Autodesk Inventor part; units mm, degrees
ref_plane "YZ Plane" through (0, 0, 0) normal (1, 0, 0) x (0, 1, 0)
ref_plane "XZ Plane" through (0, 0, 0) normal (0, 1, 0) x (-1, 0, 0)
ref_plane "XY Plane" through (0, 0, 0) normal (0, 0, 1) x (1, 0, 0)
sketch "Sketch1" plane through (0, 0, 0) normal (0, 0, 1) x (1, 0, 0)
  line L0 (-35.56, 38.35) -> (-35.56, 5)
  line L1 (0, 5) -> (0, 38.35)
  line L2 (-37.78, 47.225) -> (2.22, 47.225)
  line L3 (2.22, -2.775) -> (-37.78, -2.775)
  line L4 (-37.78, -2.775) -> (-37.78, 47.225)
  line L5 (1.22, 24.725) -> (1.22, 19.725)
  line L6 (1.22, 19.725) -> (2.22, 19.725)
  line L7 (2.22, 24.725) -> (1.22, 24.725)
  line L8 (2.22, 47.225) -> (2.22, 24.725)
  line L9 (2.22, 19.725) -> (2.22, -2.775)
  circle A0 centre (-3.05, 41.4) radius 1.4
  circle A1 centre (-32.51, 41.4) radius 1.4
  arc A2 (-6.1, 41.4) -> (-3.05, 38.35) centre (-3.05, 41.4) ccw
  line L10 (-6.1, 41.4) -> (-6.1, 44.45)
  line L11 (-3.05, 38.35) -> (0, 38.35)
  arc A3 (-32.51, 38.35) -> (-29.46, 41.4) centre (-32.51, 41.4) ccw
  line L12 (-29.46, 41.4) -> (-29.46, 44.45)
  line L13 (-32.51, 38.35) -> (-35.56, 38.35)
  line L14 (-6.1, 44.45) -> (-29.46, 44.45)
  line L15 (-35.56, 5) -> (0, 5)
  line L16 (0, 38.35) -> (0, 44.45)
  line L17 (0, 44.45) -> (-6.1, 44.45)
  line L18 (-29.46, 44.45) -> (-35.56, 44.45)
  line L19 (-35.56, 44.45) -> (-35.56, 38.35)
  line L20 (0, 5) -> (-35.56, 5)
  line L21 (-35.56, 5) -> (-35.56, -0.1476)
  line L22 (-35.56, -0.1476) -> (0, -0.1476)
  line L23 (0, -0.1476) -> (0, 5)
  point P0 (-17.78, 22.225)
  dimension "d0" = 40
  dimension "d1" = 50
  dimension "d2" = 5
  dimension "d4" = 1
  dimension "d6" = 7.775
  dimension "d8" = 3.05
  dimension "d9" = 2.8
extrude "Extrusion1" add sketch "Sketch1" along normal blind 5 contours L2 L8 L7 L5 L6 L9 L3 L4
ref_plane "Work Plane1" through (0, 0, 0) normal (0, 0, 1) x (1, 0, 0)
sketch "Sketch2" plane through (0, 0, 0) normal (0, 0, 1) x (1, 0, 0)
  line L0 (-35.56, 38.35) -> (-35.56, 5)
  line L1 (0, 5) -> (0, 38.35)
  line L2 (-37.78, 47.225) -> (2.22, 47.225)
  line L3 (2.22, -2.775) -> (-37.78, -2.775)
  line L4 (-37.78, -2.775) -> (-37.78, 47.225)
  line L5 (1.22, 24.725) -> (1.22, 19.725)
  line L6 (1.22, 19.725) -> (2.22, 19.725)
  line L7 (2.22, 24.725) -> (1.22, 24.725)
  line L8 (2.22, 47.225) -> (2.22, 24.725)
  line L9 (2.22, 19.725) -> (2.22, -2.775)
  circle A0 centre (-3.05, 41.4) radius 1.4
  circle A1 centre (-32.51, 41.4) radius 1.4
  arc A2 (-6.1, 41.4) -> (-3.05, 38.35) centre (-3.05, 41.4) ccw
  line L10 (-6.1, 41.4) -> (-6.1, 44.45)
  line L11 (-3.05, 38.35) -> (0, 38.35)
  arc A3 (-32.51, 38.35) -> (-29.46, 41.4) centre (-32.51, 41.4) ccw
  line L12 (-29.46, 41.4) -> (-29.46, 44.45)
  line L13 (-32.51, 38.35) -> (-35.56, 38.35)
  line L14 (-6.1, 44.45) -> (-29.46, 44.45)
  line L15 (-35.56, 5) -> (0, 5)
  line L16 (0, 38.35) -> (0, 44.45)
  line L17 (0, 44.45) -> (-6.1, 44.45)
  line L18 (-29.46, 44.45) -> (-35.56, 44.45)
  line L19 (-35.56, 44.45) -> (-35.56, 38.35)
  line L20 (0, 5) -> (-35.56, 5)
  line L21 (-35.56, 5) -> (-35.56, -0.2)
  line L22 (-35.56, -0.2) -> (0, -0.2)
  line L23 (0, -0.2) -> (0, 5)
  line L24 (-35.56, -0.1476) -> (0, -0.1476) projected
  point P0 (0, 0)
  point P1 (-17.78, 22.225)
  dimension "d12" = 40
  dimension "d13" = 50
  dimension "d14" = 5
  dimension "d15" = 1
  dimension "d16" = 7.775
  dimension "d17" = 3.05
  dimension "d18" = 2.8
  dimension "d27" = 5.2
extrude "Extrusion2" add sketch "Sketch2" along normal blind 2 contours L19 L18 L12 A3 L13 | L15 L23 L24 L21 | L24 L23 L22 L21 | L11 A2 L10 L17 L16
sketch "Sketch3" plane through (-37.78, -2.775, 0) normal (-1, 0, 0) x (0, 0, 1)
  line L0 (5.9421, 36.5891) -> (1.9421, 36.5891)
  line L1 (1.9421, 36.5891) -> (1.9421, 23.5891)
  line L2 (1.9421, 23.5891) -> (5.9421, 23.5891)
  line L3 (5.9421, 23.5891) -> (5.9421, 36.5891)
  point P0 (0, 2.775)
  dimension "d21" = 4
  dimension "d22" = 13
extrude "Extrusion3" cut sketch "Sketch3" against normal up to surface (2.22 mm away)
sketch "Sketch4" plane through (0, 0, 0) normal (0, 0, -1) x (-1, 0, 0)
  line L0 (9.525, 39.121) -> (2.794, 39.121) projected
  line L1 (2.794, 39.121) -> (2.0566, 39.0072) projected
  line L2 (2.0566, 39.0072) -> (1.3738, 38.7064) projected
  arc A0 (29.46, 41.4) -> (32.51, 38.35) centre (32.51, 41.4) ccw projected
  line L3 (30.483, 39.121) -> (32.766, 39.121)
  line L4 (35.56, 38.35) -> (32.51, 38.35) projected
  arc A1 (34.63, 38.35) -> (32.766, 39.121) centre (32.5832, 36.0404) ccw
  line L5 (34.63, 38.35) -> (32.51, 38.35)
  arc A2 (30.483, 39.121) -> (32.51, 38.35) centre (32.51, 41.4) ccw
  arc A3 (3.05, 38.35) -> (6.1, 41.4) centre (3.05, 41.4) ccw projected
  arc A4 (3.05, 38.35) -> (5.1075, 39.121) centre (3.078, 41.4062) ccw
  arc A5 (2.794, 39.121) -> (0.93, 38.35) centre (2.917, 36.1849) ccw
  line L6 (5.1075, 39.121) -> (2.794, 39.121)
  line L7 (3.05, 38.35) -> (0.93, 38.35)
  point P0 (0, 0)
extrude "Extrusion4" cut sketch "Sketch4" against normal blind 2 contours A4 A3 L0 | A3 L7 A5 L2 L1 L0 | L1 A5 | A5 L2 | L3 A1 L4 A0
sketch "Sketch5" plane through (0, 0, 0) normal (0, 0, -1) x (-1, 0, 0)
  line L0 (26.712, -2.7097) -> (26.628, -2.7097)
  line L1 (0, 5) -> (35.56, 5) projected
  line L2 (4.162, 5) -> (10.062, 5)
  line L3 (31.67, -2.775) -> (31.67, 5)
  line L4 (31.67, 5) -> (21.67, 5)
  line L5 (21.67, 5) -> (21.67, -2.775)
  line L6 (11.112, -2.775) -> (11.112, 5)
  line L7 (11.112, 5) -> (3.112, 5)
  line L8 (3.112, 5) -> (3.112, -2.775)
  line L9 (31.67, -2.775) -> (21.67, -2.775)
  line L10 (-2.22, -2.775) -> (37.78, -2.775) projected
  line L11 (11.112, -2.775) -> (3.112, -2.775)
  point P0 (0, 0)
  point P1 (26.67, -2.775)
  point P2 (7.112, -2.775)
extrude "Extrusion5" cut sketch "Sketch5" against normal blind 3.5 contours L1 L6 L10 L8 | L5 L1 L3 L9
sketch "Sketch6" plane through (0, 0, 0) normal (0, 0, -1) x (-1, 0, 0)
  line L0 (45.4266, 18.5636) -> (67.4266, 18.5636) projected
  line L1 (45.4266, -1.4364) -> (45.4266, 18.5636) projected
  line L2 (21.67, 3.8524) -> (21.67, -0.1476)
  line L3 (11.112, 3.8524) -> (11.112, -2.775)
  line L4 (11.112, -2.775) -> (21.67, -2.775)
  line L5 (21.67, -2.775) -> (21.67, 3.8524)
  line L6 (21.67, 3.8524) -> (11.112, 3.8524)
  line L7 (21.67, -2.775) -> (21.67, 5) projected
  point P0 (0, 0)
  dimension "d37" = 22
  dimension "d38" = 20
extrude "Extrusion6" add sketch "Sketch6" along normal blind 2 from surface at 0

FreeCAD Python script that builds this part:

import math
import FreeCAD as App
import Part
import Sketcher
from FreeCAD import Vector

doc = App.newDocument("Part")
params = doc.addObject("Spreadsheet::Sheet", "Params")
for row, (alias, value) in enumerate([
    ("sketch1_width", "40 mm"),
    ("sketch1_width2", "1 mm"),
    ("sketch1_height", "50 mm"),
    ("sketch1_height2", "5 mm"),
    ("sketch1_width3", "35.56 mm"),
    ("pad1_length", "5 mm"),
    ("sketch2_diameter", "2.8 mm"),
    ("sketch2_radius", "3.05 mm"),
    ("sketch2_height", "5.2 mm"),
    ("sketch2_width", "3.05 mm"),
    ("sketch2_width2", "35.56 mm"),
    ("pad2_length", "2 mm"),
    ("sketch3_width", "13 mm"),
    ("sketch3_height", "4 mm"),
    ("pocket1_length", "2.22 mm"),
    ("sketch4_radius", "3.05 mm"),
    ("sketch4_width", "2.12 mm"),
    ("pocket2_length", "2 mm"),
    ("sketch5_width", "8 mm"),
    ("sketch5_width2", "10 mm"),
    ("pocket3_length", "3.5 mm"),
    ("pad3_length", "2 mm"),
], start=1):
    params.set(f"A{row}", alias)
    params.set(f"B{row}", "=" + value)
    params.setAlias(f"B{row}", alias)

body = doc.addObject("PartDesign::Body", "Body")

sketch1 = body.newObject("Sketcher::SketchObject", "Sketch")
sketch1.AttachmentSupport = (doc.getObject("XY_Plane"), [""])
sketch1.MapMode = "FlatFace"
sketch1.addGeometry(Part.LineSegment(Vector(2.2, 47.2, 0), Vector(-37.8, 47.2, 0)), False)
sketch1.addGeometry(Part.LineSegment(Vector(-37.8, 47.2, 0), Vector(-37.8, -2.8, 0)), False)
sketch1.addGeometry(Part.LineSegment(Vector(-37.8, -2.8, 0), Vector(2.2, -2.8, 0)), False)
sketch1.addGeometry(Part.LineSegment(Vector(2.2, -2.8, 0), Vector(2.2, 19.7, 0)), False)
sketch1.addGeometry(Part.LineSegment(Vector(2.2, 19.7, 0), Vector(1.2, 19.7, 0)), False)
sketch1.addGeometry(Part.LineSegment(Vector(1.2, 19.7, 0), Vector(1.2, 24.7, 0)), False)
sketch1.addGeometry(Part.LineSegment(Vector(1.2, 24.7, 0), Vector(2.2, 24.7, 0)), False)
sketch1.addGeometry(Part.LineSegment(Vector(2.2, 24.7, 0), Vector(2.2, 47.2, 0)), False)
sketch1.addGeometry(Part.LineSegment(Vector(-35.6, -0.1, 0), Vector(-35.6, 44.5, 0)), False)
sketch1.addGeometry(Part.LineSegment(Vector(-35.6, 44.5, 0), Vector(0, 44.5, 0)), False)
sketch1.addGeometry(Part.LineSegment(Vector(0, 44.5, 0), Vector(0, -0.1, 0)), False)
sketch1.addGeometry(Part.LineSegment(Vector(0, -0.1, 0), Vector(-35.6, -0.1, 0)), False)
sketch1.addConstraint(Sketcher.Constraint("Coincident", 0, 2, 1, 1))
sketch1.addConstraint(Sketcher.Constraint("Coincident", 1, 2, 2, 1))
sketch1.addConstraint(Sketcher.Constraint("Coincident", 2, 2, 3, 1))
sketch1.addConstraint(Sketcher.Constraint("Coincident", 3, 2, 4, 1))
sketch1.addConstraint(Sketcher.Constraint("Coincident", 4, 2, 5, 1))
sketch1.addConstraint(Sketcher.Constraint("Coincident", 5, 2, 6, 1))
sketch1.addConstraint(Sketcher.Constraint("Coincident", 6, 2, 7, 1))
sketch1.addConstraint(Sketcher.Constraint("Coincident", 7, 2, 0, 1))
sketch1.addConstraint(Sketcher.Constraint("Coincident", 8, 2, 9, 1))
sketch1.addConstraint(Sketcher.Constraint("Coincident", 9, 2, 10, 1))
sketch1.addConstraint(Sketcher.Constraint("Coincident", 10, 2, 11, 1))
sketch1.addConstraint(Sketcher.Constraint("Coincident", 11, 2, 8, 1))
sketch1.addConstraint(Sketcher.Constraint("Horizontal", 0))
sketch1.addConstraint(Sketcher.Constraint("Vertical", 1))
sketch1.addConstraint(Sketcher.Constraint("Horizontal", 2))
sketch1.addConstraint(Sketcher.Constraint("Vertical", 3))
sketch1.addConstraint(Sketcher.Constraint("Horizontal", 4))
sketch1.addConstraint(Sketcher.Constraint("Vertical", 5))
sketch1.addConstraint(Sketcher.Constraint("Horizontal", 6))
sketch1.addConstraint(Sketcher.Constraint("Vertical", 7))
sketch1.addConstraint(Sketcher.Constraint("Vertical", 8))
sketch1.addConstraint(Sketcher.Constraint("Horizontal", 9))
sketch1.addConstraint(Sketcher.Constraint("Vertical", 10))
sketch1.addConstraint(Sketcher.Constraint("Horizontal", 11))
sketch1.addConstraint(Sketcher.Constraint("PointOnObject", 9, 2, -2))
sketch1.addConstraint(Sketcher.Constraint("Vertical", 3, 2, 6, 2))
sketch1.addConstraint(Sketcher.Constraint("Equal", 3, 7))
sketch1.addConstraint(Sketcher.Constraint("DistanceX", 0, 2, 0, 1, 40.0))
sketch1.addConstraint(Sketcher.Constraint("DistanceX", 4, 2, 4, 1, 1.0))
sketch1.addConstraint(Sketcher.Constraint("DistanceY", 1, 2, 1, 1, 50.0))
sketch1.addConstraint(Sketcher.Constraint("DistanceY", 5, 1, 5, 2, 5.0))
sketch1.addConstraint(Sketcher.Constraint("DistanceX", 9, 1, 9, 2, 35.56))
sketch1.addConstraint(Sketcher.Constraint("DistanceX", 0, 2, -1, 1, 37.78))
sketch1.addConstraint(Sketcher.Constraint("DistanceY", -1, 1, 8, 2, 44.45))
sketch1.addConstraint(Sketcher.Constraint("DistanceY", 8, 1, 8, 2, 44.5976))
sketch1.addConstraint(Sketcher.Constraint("DistanceY", -1, 1, 0, 2, 47.225))
sketch1.setExpression("Constraints[27]", "Params.sketch1_width")
sketch1.setExpression("Constraints[28]", "Params.sketch1_width2")
sketch1.setExpression("Constraints[29]", "Params.sketch1_height")
sketch1.setExpression("Constraints[30]", "Params.sketch1_height2")
sketch1.setExpression("Constraints[31]", "Params.sketch1_width3")
pad1 = body.newObject("PartDesign::Pad", "Pad")
pad1.Profile = sketch1
pad1.setExpression("Length", "Params.pad1_length")

sketch2 = body.newObject("Sketcher::SketchObject", "Sketch001")
sketch2.AttachmentSupport = (doc.getObject("XY_Plane"), [""])
sketch2.MapMode = "FlatFace"
sketch2.addGeometry(Part.LineSegment(Vector(-35.6, 44.5, 0), Vector(-35.6, 38.4, 0)), False)
sketch2.addGeometry(Part.LineSegment(Vector(-35.6, 38.4, 0), Vector(-32.5, 38.4, 0)), False)
sketch2.addGeometry(Part.ArcOfCircle(Part.Circle(Vector(-32.5, 41.4, 0), Vector(0, 0, 1), 3), math.radians(-90), math.radians(0)), False)
sketch2.addGeometry(Part.LineSegment(Vector(-29.5, 41.4, 0), Vector(-29.5, 44.5, 0)), False)
sketch2.addGeometry(Part.LineSegment(Vector(-29.5, 44.5, 0), Vector(-35.6, 44.5, 0)), False)
sketch2.addGeometry(Part.Circle(Vector(-32.5, 41.4, 0), Vector(0, 0, 1), 1.4), False)
sketch2.addGeometry(Part.LineSegment(Vector(0, 5, 0), Vector(-35.6, 5, 0)), False)
sketch2.addGeometry(Part.LineSegment(Vector(-35.6, 5, 0), Vector(-35.6, -0.2, 0)), False)
sketch2.addGeometry(Part.LineSegment(Vector(-35.6, -0.2, 0), Vector(0, -0.2, 0)), False)
sketch2.addGeometry(Part.LineSegment(Vector(0, -0.2, 0), Vector(0, 5, 0)), False)
sketch2.addGeometry(Part.LineSegment(Vector(-3, 38.4, 0), Vector(0, 38.4, 0)), False)
sketch2.addGeometry(Part.LineSegment(Vector(0, 38.4, 0), Vector(0, 44.5, 0)), False)
sketch2.addGeometry(Part.LineSegment(Vector(0, 44.5, 0), Vector(-6.1, 44.5, 0)), False)
sketch2.addGeometry(Part.LineSegment(Vector(-6.1, 44.5, 0), Vector(-6.1, 41.4, 0)), False)
sketch2.addGeometry(Part.ArcOfCircle(Part.Circle(Vector(-3, 41.4, 0), Vector(0, 0, 1), 3), math.radians(180), math.radians(270)), False)
sketch2.addGeometry(Part.Circle(Vector(-3, 41.4, 0), Vector(0, 0, 1), 1.4), False)
sketch2.addConstraint(Sketcher.Constraint("Coincident", 0, 2, 1, 1))
sketch2.addConstraint(Sketcher.Constraint("Tangent", 1, 2, 2, 1))
sketch2.addConstraint(Sketcher.Constraint("Tangent", 2, 2, 3, 1))
sketch2.addConstraint(Sketcher.Constraint("Coincident", 3, 2, 4, 1))
sketch2.addConstraint(Sketcher.Constraint("Coincident", 4, 2, 0, 1))
sketch2.addConstraint(Sketcher.Constraint("Coincident", 6, 2, 7, 1))
sketch2.addConstraint(Sketcher.Constraint("Coincident", 7, 2, 8, 1))
sketch2.addConstraint(Sketcher.Constraint("Coincident", 8, 2, 9, 1))
sketch2.addConstraint(Sketcher.Constraint("Coincident", 9, 2, 6, 1))
sketch2.addConstraint(Sketcher.Constraint("Coincident", 10, 2, 11, 1))
sketch2.addConstraint(Sketcher.Constraint("Coincident", 11, 2, 12, 1))
sketch2.addConstraint(Sketcher.Constraint("Coincident", 12, 2, 13, 1))
sketch2.addConstraint(Sketcher.Constraint("Tangent", 13, 2, 14, 1))
sketch2.addConstraint(Sketcher.Constraint("Tangent", 14, 2, 10, 1))
sketch2.addConstraint(Sketcher.Constraint("Vertical", 0))
sketch2.addConstraint(Sketcher.Constraint("Horizontal", 1))
sketch2.addConstraint(Sketcher.Constraint("Vertical", 3))
sketch2.addConstraint(Sketcher.Constraint("Horizontal", 4))
sketch2.addConstraint(Sketcher.Constraint("Horizontal", 6))
sketch2.addConstraint(Sketcher.Constraint("Vertical", 7))
sketch2.addConstraint(Sketcher.Constraint("Horizontal", 8))
sketch2.addConstraint(Sketcher.Constraint("Vertical", 9))
sketch2.addConstraint(Sketcher.Constraint("Horizontal", 10))
sketch2.addConstraint(Sketcher.Constraint("Vertical", 11))
sketch2.addConstraint(Sketcher.Constraint("Horizontal", 12))
sketch2.addConstraint(Sketcher.Constraint("Vertical", 13))
sketch2.addConstraint(Sketcher.Constraint("Coincident", 5, 3, 2, 3))
sketch2.addConstraint(Sketcher.Constraint("Coincident", 15, 3, 14, 3))
sketch2.addConstraint(Sketcher.Constraint("Equal", 2, 14))
sketch2.addConstraint(Sketcher.Constraint("Equal", 5, 15))
sketch2.addConstraint(Sketcher.Constraint("PointOnObject", 8, 2, -2))
sketch2.addConstraint(Sketcher.Constraint("PointOnObject", 10, 2, -2))
sketch2.addConstraint(Sketcher.Constraint("Horizontal", 5, 3, 14, 3))
sketch2.addConstraint(Sketcher.Constraint("Horizontal", 4, 2, 11, 2))
sketch2.addConstraint(Sketcher.Constraint("Vertical", 4, 2, 6, 2))
sketch2.addConstraint(Sketcher.Constraint("Equal", 1, 10))
sketch2.addConstraint(Sketcher.Constraint("Equal", 12, 0))
sketch2.addConstraint(Sketcher.Constraint("Diameter", 5, 2.8))
sketch2.addConstraint(Sketcher.Constraint("Radius", 2, 3.05))
sketch2.addConstraint(Sketcher.Constraint("DistanceY", 7, 2, 7, 1, 5.2))
sketch2.addConstraint(Sketcher.Constraint("DistanceY", -1, 1, 6, 2, 5.0))
sketch2.addConstraint(Sketcher.Constraint("DistanceX", 1, 1, 1, 2, 3.05))
sketch2.addConstraint(Sketcher.Constraint("DistanceX", 6, 2, 6, 1, 35.56))
sketch2.addConstraint(Sketcher.Constraint("DistanceY", -1, 1, 2, 3, 41.4))
sketch2.setExpression("Constraints[37]", "Params.sketch2_diameter")
sketch2.setExpression("Constraints[38]", "Params.sketch2_radius")
sketch2.setExpression("Constraints[39]", "Params.sketch2_height")
sketch2.setExpression("Constraints[41]", "Params.sketch2_width")
sketch2.setExpression("Constraints[42]", "Params.sketch2_width2")
pad2 = body.newObject("PartDesign::Pad", "Pad001")
pad2.Profile = sketch2
pad2.setExpression("Length", "Params.pad2_length")

sketch3 = body.newObject("Sketcher::SketchObject", "Sketch002")
sketch3.AttachmentSupport = (doc.getObject("YZ_Plane"), [""])
sketch3.MapMode = "FlatFace"
sketch3.AttachmentOffset = App.Placement(Vector(0, 0, -37.78), App.Rotation())
sketch3.addGeometry(Part.LineSegment(Vector(20.8, 5.9, 0), Vector(33.8, 5.9, 0)), False)
sketch3.addGeometry(Part.LineSegment(Vector(33.8, 5.9, 0), Vector(33.8, 1.9, 0)), False)
sketch3.addGeometry(Part.LineSegment(Vector(33.8, 1.9, 0), Vector(20.8, 1.9, 0)), False)
sketch3.addGeometry(Part.LineSegment(Vector(20.8, 1.9, 0), Vector(20.8, 5.9, 0)), False)
sketch3.addConstraint(Sketcher.Constraint("Coincident", 0, 2, 1, 1))
sketch3.addConstraint(Sketcher.Constraint("Coincident", 1, 2, 2, 1))
sketch3.addConstraint(Sketcher.Constraint("Coincident", 2, 2, 3, 1))
sketch3.addConstraint(Sketcher.Constraint("Coincident", 3, 2, 0, 1))
sketch3.addConstraint(Sketcher.Constraint("Horizontal", 0))
sketch3.addConstraint(Sketcher.Constraint("Vertical", 1))
sketch3.addConstraint(Sketcher.Constraint("Horizontal", 2))
sketch3.addConstraint(Sketcher.Constraint("Vertical", 3))
sketch3.addConstraint(Sketcher.Constraint("DistanceX", 0, 1, 0, 2, 13.0))
sketch3.addConstraint(Sketcher.Constraint("DistanceY", 1, 2, 1, 1, 4.0))
sketch3.addConstraint(Sketcher.Constraint("DistanceX", -1, 1, 0, 2, 33.814))
sketch3.addConstraint(Sketcher.Constraint("DistanceY", -1, 1, 0, 2, 5.942))
sketch3.setExpression("Constraints[8]", "Params.sketch3_width")
sketch3.setExpression("Constraints[9]", "Params.sketch3_height")
pocket1 = body.newObject("PartDesign::Pocket", "Pocket")
pocket1.Profile = sketch3
pocket1.setExpression("Length", "Params.pocket1_length")
pocket1.Reversed = True

sketch4 = body.newObject("Sketcher::SketchObject", "Sketch003")
sketch4.AttachmentSupport = (doc.getObject("XY_Plane"), [""])
sketch4.MapMode = "FlatFace"
sketch4.addGeometry(Part.ArcOfCircle(Part.Circle(Vector(-3.1, 41.4, 0), Vector(0, 0, 1), 3.1), math.radians(-132), math.radians(-89)), False)
sketch4.addGeometry(Part.LineSegment(Vector(-5.1, 39.1, 0), Vector(-2.8, 39.1, 0)), False)
sketch4.addGeometry(Part.ArcOfCircle(Part.Circle(Vector(-2.9, 36.2, 0), Vector(0, 0, 1), 2.9), math.radians(47), math.radians(88)), False)
sketch4.addGeometry(Part.LineSegment(Vector(-0.9, 38.4, 0), Vector(-3, 38.4, 0)), False)
sketch4.addGeometry(Part.LineSegment(Vector(-32.8, 39.1, 0), Vector(-30.5, 39.1, 0)), False)
sketch4.addGeometry(Part.ArcOfCircle(Part.Circle(Vector(-32.5, 41.4, 0), Vector(0, 0, 1), 3), math.radians(-90), math.radians(-48)), False)
sketch4.addGeometry(Part.LineSegment(Vector(-32.5, 38.4, 0), Vector(-34.6, 38.4, 0)), False)
sketch4.addGeometry(Part.ArcOfCircle(Part.Circle(Vector(-32.6, 36, 0), Vector(0, 0, 1), 3.1), math.radians(93), math.radians(132)), False)
sketch4.addConstraint(Sketcher.Constraint("Coincident", 0, 1, 1, 1))
sketch4.addConstraint(Sketcher.Constraint("Coincident", 1, 2, 2, 2))
sketch4.addConstraint(Sketcher.Constraint("Coincident", 2, 1, 3, 1))
sketch4.addConstraint(Sketcher.Constraint("Coincident", 3, 2, 0, 2))
sketch4.addConstraint(Sketcher.Constraint("Coincident", 4, 2, 5, 2))
sketch4.addConstraint(Sketcher.Constraint("Tangent", 5, 1, 6, 1))
sketch4.addConstraint(Sketcher.Constraint("Coincident", 6, 2, 7, 2))
sketch4.addConstraint(Sketcher.Constraint("Coincident", 7, 1, 4, 1))
sketch4.addConstraint(Sketcher.Constraint("Horizontal", 1))
sketch4.addConstraint(Sketcher.Constraint("Horizontal", 3))
sketch4.addConstraint(Sketcher.Constraint("Horizontal", 4))
sketch4.addConstraint(Sketcher.Constraint("Horizontal", 6))
sketch4.addConstraint(Sketcher.Constraint("Horizontal", 1, 2, 4, 2))
sketch4.addConstraint(Sketcher.Constraint("Horizontal", 3, 2, 5, 1))
sketch4.addConstraint(Sketcher.Constraint("Equal", 3, 6))
sketch4.addConstraint(Sketcher.Constraint("Radius", 5, 3.05))
sketch4.addConstraint(Sketcher.Constraint("Radius", 7, 3.086))
sketch4.addConstraint(Sketcher.Constraint("DistanceX", 3, 2, 3, 1, 2.12))
sketch4.addConstraint(Sketcher.Constraint("DistanceY", -1, 1, 5, 3, 41.4))
sketch4.addConstraint(Sketcher.Constraint("Radius", 0, 3.0563))
sketch4.addConstraint(Sketcher.Constraint("Radius", 2, 2.9387))
sketch4.addConstraint(Sketcher.Constraint("DistanceX", 4, 1, 4, 2, 2.283))
sketch4.addConstraint(Sketcher.Constraint("DistanceX", 5, 3, -1, 1, 32.51))
sketch4.addConstraint(Sketcher.Constraint("DistanceX", 2, 1, -1, 1, 0.93))
sketch4.addConstraint(Sketcher.Constraint("DistanceX", 1, 1, 1, 2, 2.3135))
sketch4.addConstraint(Sketcher.Constraint("DistanceX", 0, 3, -1, 1, 3.078))
sketch4.addConstraint(Sketcher.Constraint("DistanceX", 2, 3, -1, 1, 2.917))
sketch4.setExpression("Constraints[15]", "Params.sketch4_radius")
sketch4.setExpression("Constraints[17]", "Params.sketch4_width")
pocket2 = body.newObject("PartDesign::Pocket", "Pocket001")
pocket2.Profile = sketch4
pocket2.setExpression("Length", "Params.pocket2_length")
pocket2.Reversed = True

sketch5 = body.newObject("Sketcher::SketchObject", "Sketch004")
sketch5.AttachmentSupport = (doc.getObject("XY_Plane"), [""])
sketch5.MapMode = "FlatFace"
sketch5.addGeometry(Part.LineSegment(Vector(-11, 5, 0), Vector(-3, 5, 0)), False)
sketch5.addGeometry(Part.LineSegment(Vector(-3, 5, 0), Vector(-3, -3, 0)), False)
sketch5.addGeometry(Part.LineSegment(Vector(-3, -3, 0), Vector(-11, -3, 0)), False)
sketch5.addGeometry(Part.LineSegment(Vector(-11, -3, 0), Vector(-11, 5, 0)), False)
sketch5.addGeometry(Part.LineSegment(Vector(-22, 5, 0), Vector(-22, -3, 0)), False)
sketch5.addGeometry(Part.LineSegment(Vector(-22, -3, 0), Vector(-32, -3, 0)), False)
sketch5.addGeometry(Part.LineSegment(Vector(-32, -3, 0), Vector(-32, 5, 0)), False)
sketch5.addGeometry(Part.LineSegment(Vector(-32, 5, 0), Vector(-22, 5, 0)), False)
sketch5.addConstraint(Sketcher.Constraint("Coincident", 0, 2, 1, 1))
sketch5.addConstraint(Sketcher.Constraint("Coincident", 1, 2, 2, 1))
sketch5.addConstraint(Sketcher.Constraint("Coincident", 2, 2, 3, 1))
sketch5.addConstraint(Sketcher.Constraint("Coincident", 3, 2, 0, 1))
sketch5.addConstraint(Sketcher.Constraint("Coincident", 4, 2, 5, 1))
sketch5.addConstraint(Sketcher.Constraint("Coincident", 5, 2, 6, 1))
sketch5.addConstraint(Sketcher.Constraint("Coincident", 6, 2, 7, 1))
sketch5.addConstraint(Sketcher.Constraint("Coincident", 7, 2, 4, 1))
sketch5.addConstraint(Sketcher.Constraint("Horizontal", 0))
sketch5.addConstraint(Sketcher.Constraint("Vertical", 1))
sketch5.addConstraint(Sketcher.Constraint("Horizontal", 2))
sketch5.addConstraint(Sketcher.Constraint("Vertical", 3))
sketch5.addConstraint(Sketcher.Constraint("Vertical", 4))
sketch5.addConstraint(Sketcher.Constraint("Horizontal", 5))
sketch5.addConstraint(Sketcher.Constraint("Vertical", 6))
sketch5.addConstraint(Sketcher.Constraint("Horizontal", 7))
sketch5.addConstraint(Sketcher.Constraint("Horizontal", 2, 2, 4, 2))
sketch5.addConstraint(Sketcher.Constraint("Horizontal", 3, 2, 6, 2))
sketch5.addConstraint(Sketcher.Constraint("DistanceX", 0, 1, 0, 2, 8.0))
sketch5.addConstraint(Sketcher.Constraint("DistanceX", 5, 2, 5, 1, 10.0))
sketch5.addConstraint(Sketcher.Constraint("DistanceY", -1, 1, 0, 2, 5.0))
sketch5.addConstraint(Sketcher.Constraint("DistanceY", 1, 2, 1, 1, 7.775))
sketch5.addConstraint(Sketcher.Constraint("DistanceX", 4, 2, -1, 1, 21.67))
sketch5.addConstraint(Sketcher.Constraint("DistanceX", 0, 2, -1, 1, 3.112))
sketch5.setExpression("Constraints[18]", "Params.sketch5_width")
sketch5.setExpression("Constraints[19]", "Params.sketch5_width2")
pocket3 = body.newObject("PartDesign::Pocket", "Pocket002")
pocket3.Profile = sketch5
pocket3.setExpression("Length", "Params.pocket3_length")
pocket3.Reversed = True

sketch6 = body.newObject("Sketcher::SketchObject", "Sketch005")
sketch6.AttachmentSupport = (doc.getObject("XY_Plane"), [""])
sketch6.MapMode = "FlatFace"
sketch6.addGeometry(Part.LineSegment(Vector(-22, -3, 0), Vector(-22, 4, 0)), False)
sketch6.addGeometry(Part.LineSegment(Vector(-22, 4, 0), Vector(-11, 4, 0)), False)
sketch6.addGeometry(Part.LineSegment(Vector(-11, 4, 0), Vector(-11, -3, 0)), False)
sketch6.addGeometry(Part.LineSegment(Vector(-11, -3, 0), Vector(-22, -3, 0)), False)
sketch6.addConstraint(Sketcher.Constraint("Coincident", 0, 2, 1, 1))
sketch6.addConstraint(Sketcher.Constraint("Coincident", 1, 2, 2, 1))
sketch6.addConstraint(Sketcher.Constraint("Coincident", 2, 2, 3, 1))
sketch6.addConstraint(Sketcher.Constraint("Coincident", 3, 2, 0, 1))
sketch6.addConstraint(Sketcher.Constraint("Vertical", 0))
sketch6.addConstraint(Sketcher.Constraint("Horizontal", 1))
sketch6.addConstraint(Sketcher.Constraint("Vertical", 2))
sketch6.addConstraint(Sketcher.Constraint("Horizontal", 3))
sketch6.addConstraint(Sketcher.Constraint("DistanceX", 1, 1, 1, 2, 10.558))
sketch6.addConstraint(Sketcher.Constraint("DistanceX", 0, 2, -1, 1, 21.67))
sketch6.addConstraint(Sketcher.Constraint("DistanceY", 0, 1, 0, 2, 6.6274))
sketch6.addConstraint(Sketcher.Constraint("DistanceY", 2, 2, -1, 1, 2.775))
pad3 = body.newObject("PartDesign::Pad", "Pad002")
pad3.Profile = sketch6
pad3.setExpression("Length", "Params.pad3_length")
pad3.Reversed = True

doc.recompute()
